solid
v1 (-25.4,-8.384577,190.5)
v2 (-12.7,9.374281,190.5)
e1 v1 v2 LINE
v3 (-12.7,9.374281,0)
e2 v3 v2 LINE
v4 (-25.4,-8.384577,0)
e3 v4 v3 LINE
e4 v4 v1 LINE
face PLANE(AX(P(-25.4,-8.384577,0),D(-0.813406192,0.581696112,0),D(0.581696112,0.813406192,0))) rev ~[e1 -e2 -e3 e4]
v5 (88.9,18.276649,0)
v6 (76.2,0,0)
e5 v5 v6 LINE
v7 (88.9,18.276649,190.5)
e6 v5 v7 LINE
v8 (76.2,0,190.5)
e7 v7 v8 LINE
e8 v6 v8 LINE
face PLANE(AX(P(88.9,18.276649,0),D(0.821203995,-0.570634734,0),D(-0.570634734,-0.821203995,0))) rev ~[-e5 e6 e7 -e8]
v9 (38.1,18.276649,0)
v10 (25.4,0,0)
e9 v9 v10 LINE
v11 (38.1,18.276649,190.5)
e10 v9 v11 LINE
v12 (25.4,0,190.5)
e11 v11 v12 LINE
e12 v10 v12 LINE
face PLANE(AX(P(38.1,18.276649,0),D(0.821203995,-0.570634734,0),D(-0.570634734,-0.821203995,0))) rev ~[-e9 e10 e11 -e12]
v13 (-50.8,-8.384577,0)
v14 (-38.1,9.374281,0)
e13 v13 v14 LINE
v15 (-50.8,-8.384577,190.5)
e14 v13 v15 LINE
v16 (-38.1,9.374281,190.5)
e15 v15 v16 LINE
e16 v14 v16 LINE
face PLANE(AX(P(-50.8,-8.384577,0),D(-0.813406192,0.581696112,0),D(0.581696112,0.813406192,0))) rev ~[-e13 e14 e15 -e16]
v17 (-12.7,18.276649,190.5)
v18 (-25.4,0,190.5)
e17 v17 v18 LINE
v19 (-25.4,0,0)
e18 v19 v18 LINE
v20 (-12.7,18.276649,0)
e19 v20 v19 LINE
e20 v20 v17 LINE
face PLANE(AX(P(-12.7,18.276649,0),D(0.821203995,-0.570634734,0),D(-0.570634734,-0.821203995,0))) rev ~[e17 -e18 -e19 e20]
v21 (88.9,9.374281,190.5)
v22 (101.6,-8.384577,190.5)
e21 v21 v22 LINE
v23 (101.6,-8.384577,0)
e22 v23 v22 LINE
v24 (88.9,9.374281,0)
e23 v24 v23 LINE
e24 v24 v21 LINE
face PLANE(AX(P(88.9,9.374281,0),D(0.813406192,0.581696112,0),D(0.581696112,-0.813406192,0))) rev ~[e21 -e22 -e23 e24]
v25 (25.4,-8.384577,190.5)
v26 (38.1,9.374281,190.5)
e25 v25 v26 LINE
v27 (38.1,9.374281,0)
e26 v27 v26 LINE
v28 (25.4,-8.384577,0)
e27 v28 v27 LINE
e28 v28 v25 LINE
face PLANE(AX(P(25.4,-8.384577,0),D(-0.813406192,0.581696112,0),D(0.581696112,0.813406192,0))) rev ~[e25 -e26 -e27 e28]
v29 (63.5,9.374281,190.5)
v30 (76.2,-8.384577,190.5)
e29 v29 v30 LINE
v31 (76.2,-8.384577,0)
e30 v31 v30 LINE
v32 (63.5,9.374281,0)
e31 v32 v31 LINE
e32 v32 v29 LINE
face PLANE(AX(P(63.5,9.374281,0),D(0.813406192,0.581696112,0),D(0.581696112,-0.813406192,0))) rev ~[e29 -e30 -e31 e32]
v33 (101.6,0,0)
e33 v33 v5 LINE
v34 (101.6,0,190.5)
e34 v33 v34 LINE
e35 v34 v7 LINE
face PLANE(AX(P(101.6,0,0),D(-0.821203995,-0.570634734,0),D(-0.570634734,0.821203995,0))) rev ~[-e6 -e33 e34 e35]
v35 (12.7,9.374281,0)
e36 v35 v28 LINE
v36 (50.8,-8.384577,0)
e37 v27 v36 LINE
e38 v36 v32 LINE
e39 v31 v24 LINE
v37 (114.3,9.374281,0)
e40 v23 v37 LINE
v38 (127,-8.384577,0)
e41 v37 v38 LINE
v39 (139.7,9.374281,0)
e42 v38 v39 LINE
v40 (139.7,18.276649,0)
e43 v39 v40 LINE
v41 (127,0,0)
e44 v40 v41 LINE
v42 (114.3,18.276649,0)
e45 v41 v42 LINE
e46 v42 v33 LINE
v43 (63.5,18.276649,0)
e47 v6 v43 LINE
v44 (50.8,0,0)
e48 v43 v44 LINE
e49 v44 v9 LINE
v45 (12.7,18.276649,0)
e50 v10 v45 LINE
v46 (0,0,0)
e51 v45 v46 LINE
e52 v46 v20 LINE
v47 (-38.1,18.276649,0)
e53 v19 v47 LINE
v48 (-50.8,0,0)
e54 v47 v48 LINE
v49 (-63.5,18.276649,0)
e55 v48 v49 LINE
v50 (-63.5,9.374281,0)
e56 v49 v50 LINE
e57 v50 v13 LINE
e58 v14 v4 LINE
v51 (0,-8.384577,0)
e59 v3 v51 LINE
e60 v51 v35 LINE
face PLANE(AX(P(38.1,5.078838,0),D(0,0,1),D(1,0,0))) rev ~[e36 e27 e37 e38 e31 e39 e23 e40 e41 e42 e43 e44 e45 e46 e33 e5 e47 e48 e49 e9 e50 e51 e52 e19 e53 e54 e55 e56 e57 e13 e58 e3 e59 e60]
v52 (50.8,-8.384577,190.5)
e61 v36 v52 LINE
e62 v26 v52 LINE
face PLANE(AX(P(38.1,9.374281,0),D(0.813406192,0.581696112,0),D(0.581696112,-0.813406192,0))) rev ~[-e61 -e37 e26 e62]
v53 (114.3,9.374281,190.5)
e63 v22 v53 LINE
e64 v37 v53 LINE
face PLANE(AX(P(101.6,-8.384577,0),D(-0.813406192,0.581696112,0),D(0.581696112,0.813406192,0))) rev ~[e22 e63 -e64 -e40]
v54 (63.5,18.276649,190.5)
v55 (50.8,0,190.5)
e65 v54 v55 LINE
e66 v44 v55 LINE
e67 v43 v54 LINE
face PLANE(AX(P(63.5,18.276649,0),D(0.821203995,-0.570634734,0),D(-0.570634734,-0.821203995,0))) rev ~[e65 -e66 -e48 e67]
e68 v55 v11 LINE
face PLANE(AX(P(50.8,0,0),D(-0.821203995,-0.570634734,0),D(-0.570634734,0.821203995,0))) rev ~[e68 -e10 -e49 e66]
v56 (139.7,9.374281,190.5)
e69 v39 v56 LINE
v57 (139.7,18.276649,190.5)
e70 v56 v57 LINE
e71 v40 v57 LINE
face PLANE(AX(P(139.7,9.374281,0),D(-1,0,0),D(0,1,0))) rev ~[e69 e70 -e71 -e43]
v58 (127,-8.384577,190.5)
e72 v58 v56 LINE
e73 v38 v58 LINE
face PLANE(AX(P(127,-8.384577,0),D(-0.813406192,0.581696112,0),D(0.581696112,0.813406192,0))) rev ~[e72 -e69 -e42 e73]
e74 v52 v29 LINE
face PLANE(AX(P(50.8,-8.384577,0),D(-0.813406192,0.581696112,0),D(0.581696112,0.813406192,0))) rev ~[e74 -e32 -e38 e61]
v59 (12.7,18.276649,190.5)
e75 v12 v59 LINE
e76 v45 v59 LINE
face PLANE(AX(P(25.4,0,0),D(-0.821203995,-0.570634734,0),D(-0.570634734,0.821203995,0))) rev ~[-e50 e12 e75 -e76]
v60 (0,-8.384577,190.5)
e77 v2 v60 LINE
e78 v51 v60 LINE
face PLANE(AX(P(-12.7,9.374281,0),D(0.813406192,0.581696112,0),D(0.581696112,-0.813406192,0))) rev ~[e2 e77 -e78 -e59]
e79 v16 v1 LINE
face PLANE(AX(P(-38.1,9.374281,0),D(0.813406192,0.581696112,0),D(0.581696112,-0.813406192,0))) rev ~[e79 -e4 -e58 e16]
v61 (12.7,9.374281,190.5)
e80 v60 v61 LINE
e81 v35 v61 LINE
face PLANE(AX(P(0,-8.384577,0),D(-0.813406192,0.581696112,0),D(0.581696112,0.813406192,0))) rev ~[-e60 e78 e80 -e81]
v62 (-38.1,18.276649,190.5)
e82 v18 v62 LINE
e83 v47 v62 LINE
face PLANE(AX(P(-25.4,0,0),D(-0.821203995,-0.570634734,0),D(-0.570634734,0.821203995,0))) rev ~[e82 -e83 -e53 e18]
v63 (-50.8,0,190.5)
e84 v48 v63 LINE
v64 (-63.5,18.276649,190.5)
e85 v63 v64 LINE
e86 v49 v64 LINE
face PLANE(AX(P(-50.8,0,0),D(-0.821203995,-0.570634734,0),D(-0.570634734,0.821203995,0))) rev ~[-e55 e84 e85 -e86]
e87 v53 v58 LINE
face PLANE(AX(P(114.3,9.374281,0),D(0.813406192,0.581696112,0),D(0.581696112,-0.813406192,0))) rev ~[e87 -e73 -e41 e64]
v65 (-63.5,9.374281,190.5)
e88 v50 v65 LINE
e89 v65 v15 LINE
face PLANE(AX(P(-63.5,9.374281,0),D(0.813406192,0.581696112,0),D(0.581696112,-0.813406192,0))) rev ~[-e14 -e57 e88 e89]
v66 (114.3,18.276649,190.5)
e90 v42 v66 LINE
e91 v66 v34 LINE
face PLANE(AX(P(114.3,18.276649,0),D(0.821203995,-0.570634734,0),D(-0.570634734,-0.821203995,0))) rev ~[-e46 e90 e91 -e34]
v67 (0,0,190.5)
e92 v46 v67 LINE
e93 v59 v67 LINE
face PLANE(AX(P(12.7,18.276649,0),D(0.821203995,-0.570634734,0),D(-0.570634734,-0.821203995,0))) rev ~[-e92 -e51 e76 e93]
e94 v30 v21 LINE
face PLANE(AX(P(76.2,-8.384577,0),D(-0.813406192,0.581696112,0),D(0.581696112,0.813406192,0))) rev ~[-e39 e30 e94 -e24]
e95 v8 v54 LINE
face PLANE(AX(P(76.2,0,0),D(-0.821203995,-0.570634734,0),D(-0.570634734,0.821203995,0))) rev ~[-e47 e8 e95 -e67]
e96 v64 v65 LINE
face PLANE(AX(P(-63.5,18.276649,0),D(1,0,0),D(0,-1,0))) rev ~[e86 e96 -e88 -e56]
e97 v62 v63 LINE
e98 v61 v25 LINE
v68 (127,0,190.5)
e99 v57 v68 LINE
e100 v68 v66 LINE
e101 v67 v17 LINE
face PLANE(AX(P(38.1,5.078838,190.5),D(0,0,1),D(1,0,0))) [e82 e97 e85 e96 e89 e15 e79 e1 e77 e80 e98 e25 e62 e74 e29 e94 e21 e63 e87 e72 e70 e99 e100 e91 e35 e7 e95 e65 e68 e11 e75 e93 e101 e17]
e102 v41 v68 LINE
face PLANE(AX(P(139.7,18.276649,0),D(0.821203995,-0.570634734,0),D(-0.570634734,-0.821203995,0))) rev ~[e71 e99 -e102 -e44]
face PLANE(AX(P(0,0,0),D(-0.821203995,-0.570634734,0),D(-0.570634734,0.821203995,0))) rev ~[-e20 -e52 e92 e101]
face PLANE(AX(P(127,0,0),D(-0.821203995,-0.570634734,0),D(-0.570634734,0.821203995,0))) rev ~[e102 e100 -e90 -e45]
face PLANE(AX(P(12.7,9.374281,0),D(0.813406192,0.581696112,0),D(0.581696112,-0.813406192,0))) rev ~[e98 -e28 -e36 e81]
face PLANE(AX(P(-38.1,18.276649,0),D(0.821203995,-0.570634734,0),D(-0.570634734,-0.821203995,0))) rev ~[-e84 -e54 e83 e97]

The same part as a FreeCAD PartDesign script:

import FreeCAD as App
import Part
import Sketcher

V = App.Vector
Q = App.Units.Quantity

doc = App.newDocument("Part")
body = doc.addObject("PartDesign::Body", "Body")

# Sketch on XY plane
sketch1 = body.newObject("Sketcher::SketchObject", "Sketch")
sketch1.AttachmentSupport = (doc.getObject("XY_Plane"), [""])
sketch1.MapMode = "FlatFace"
sketch1.addGeometry([
    Part.LineSegment(V(-51, 0, 0), V(-64, 18, 0)),  # 0
    Part.LineSegment(V(-64, 18, 0), V(-64, 9, 0)),  # 1
    Part.LineSegment(V(-64, 9, 0), V(-51, -8, 0)),  # 2
    Part.LineSegment(V(-51, -8, 0), V(-38, 9, 0)),  # 3
    Part.LineSegment(V(-38, 9, 0), V(-25, -8, 0)),  # 4
    Part.LineSegment(V(-25, -8, 0), V(-13, 9, 0)),  # 5
    Part.LineSegment(V(-13, 9, 0), V(0, -8, 0)),  # 6
    Part.LineSegment(V(0, -8, 0), V(13, 9, 0)),  # 7
    Part.LineSegment(V(13, 9, 0), V(25, -8, 0)),  # 8
    Part.LineSegment(V(25, -8, 0), V(38, 9, 0)),  # 9
    Part.LineSegment(V(38, 9, 0), V(51, -8, 0)),  # 10
    Part.LineSegment(V(51, -8, 0), V(64, 9, 0)),  # 11
    Part.LineSegment(V(64, 9, 0), V(76, -8, 0)),  # 12
    Part.LineSegment(V(76, -8, 0), V(89, 9, 0)),  # 13
    Part.LineSegment(V(89, 9, 0), V(102, -8, 0)),  # 14
    Part.LineSegment(V(102, -8, 0), V(114, 9, 0)),  # 15
    Part.LineSegment(V(114, 9, 0), V(127, -8, 0)),  # 16
    Part.LineSegment(V(127, -8, 0), V(140, 9, 0)),  # 17
    Part.LineSegment(V(140, 9, 0), V(140, 18, 0)),  # 18
    Part.LineSegment(V(140, 18, 0), V(127, 0, 0)),  # 19
    Part.LineSegment(V(127, 0, 0), V(114, 18, 0)),  # 20
    Part.LineSegment(V(114, 18, 0), V(102, 0, 0)),  # 21
    Part.LineSegment(V(102, 0, 0), V(89, 18, 0)),  # 22
    Part.LineSegment(V(89, 18, 0), V(76, 0, 0)),  # 23
    Part.LineSegment(V(76, 0, 0), V(64, 18, 0)),  # 24
    Part.LineSegment(V(64, 18, 0), V(51, 0, 0)),  # 25
    Part.LineSegment(V(51, 0, 0), V(38, 18, 0)),  # 26
    Part.LineSegment(V(38, 18, 0), V(25, 0, 0)),  # 27
    Part.LineSegment(V(25, 0, 0), V(13, 18, 0)),  # 28
    Part.LineSegment(V(13, 18, 0), V(0, 0, 0)),  # 29
    Part.LineSegment(V(0, 0, 0), V(-13, 18, 0)),  # 30
    Part.LineSegment(V(-13, 18, 0), V(-25, 0, 0)),  # 31
    Part.LineSegment(V(-25, 0, 0), V(-38, 18, 0)),  # 32
    Part.LineSegment(V(-38, 18, 0), V(-51, 0, 0)),  # 33
], False)
sketch1.addConstraint([
    Sketcher.Constraint("Coincident", 0, 2, 1, 1),
    Sketcher.Constraint("Coincident", 1, 2, 2, 1),
    Sketcher.Constraint("Coincident", 2, 2, 3, 1),
    Sketcher.Constraint("Coincident", 3, 2, 4, 1),
    Sketcher.Constraint("Coincident", 4, 2, 5, 1),
    Sketcher.Constraint("Coincident", 5, 2, 6, 1),
    Sketcher.Constraint("Coincident", 6, 2, 7, 1),
    Sketcher.Constraint("Coincident", 7, 2, 8, 1),
    Sketcher.Constraint("Coincident", 8, 2, 9, 1),
    Sketcher.Constraint("Coincident", 9, 2, 10, 1),
    Sketcher.Constraint("Coincident", 10, 2, 11, 1),
    Sketcher.Constraint("Coincident", 11, 2, 12, 1),
    Sketcher.Constraint("Coincident", 12, 2, 13, 1),
    Sketcher.Constraint("Coincident", 13, 2, 14, 1),
    Sketcher.Constraint("Coincident", 14, 2, 15, 1),
    Sketcher.Constraint("Coincident", 15, 2, 16, 1),
    Sketcher.Constraint("Coincident", 16, 2, 17, 1),
    Sketcher.Constraint("Coincident", 17, 2, 18, 1),
    Sketcher.Constraint("Coincident", 18, 2, 19, 1),
    Sketcher.Constraint("Coincident", 19, 2, 20, 1),
    Sketcher.Constraint("Coincident", 20, 2, 21, 1),
    Sketcher.Constraint("Coincident", 21, 2, 22, 1),
    Sketcher.Constraint("Coincident", 22, 2, 23, 1),
    Sketcher.Constraint("Coincident", 23, 2, 24, 1),
    Sketcher.Constraint("Coincident", 24, 2, 25, 1),
    Sketcher.Constraint("Coincident", 25, 2, 26, 1),
    Sketcher.Constraint("Coincident", 26, 2, 27, 1),
    Sketcher.Constraint("Coincident", 27, 2, 28, 1),
    Sketcher.Constraint("Coincident", 28, 2, 29, 1),
    Sketcher.Constraint("Coincident", 29, 2, 30, 1),
    Sketcher.Constraint("Coincident", 30, 2, 31, 1),
    Sketcher.Constraint("Coincident", 31, 2, 32, 1),
    Sketcher.Constraint("Coincident", 32, 2, 33, 1),
    Sketcher.Constraint("Coincident", 33, 2, 0, 1),
    Sketcher.Constraint("Vertical", 1),
    Sketcher.Constraint("Vertical", 18),
    Sketcher.Constraint("Coincident", 29, 2, -1, 1),
    Sketcher.Constraint("Symmetric", 27, 2, 31, 2, -1, 1),
    Sketcher.Constraint("Symmetric", 25, 2, 33, 2, -1, 1),
    Sketcher.Constraint("Symmetric", 5, 2, 7, 2, -2),
    Sketcher.Constraint("Symmetric", 4, 2, 8, 2, -2),
    Sketcher.Constraint("Symmetric", 3, 2, 9, 2, -2),
    Sketcher.Constraint("Symmetric", 2, 2, 10, 2, -2),
    Sketcher.Constraint("Symmetric", 1, 2, 11, 2, -2),
    Sketcher.Constraint("Symmetric", 0, 2, 24, 2, -2),
    Sketcher.Constraint("Symmetric", 28, 2, 30, 2, -2),
    Sketcher.Constraint("Symmetric", 26, 2, 32, 2, -2),
    Sketcher.Constraint("PointOnObject", 6, 2, -2),
    Sketcher.Constraint("PointOnObject", 19, 2, -1),
    Sketcher.Constraint("PointOnObject", 21, 2, -1),
    Sketcher.Constraint("PointOnObject", 23, 2, -1),
    Sketcher.Constraint("PointOnObject", 25, 2, -1),
    Sketcher.Constraint("PointOnObject", 27, 2, -1),
    Sketcher.Constraint("Parallel", 2, 4),
    Sketcher.Constraint("Parallel", 3, 5),
    Sketcher.Constraint("Parallel", 4, 6),
    Sketcher.Constraint("Parallel", 5, 7),
    Sketcher.Constraint("Parallel", 10, 12),
    Sketcher.Constraint("Parallel", 11, 13),
    Sketcher.Constraint("Parallel", 12, 14),
    Sketcher.Constraint("Parallel", 13, 15),
    Sketcher.Constraint("Parallel", 14, 16),
    Sketcher.Constraint("Parallel", 15, 17),
    Sketcher.Constraint("Parallel", 0, 20),
    Sketcher.Constraint("Parallel", 19, 21),
    Sketcher.Constraint("Parallel", 20, 22),
    Sketcher.Constraint("Parallel", 21, 23),
    Sketcher.Constraint("Parallel", 22, 24),
    Sketcher.Constraint("Parallel", 23, 25),
    Sketcher.Constraint("Parallel", 24, 26),
    Sketcher.Constraint("Parallel", 25, 27),
    Sketcher.Constraint("Parallel", 26, 28),
    Sketcher.Constraint("Parallel", 27, 29),
    Sketcher.Constraint("Horizontal", 1, 2, 3, 2),
    Sketcher.Constraint("Horizontal", 2, 2, 4, 2),
    Sketcher.Constraint("Horizontal", 3, 2, 5, 2),
    Sketcher.Constraint("Horizontal", 4, 2, 6, 2),
    Sketcher.Constraint("Horizontal", 10, 2, 12, 2),
    Sketcher.Constraint("Horizontal", 11, 2, 13, 2),
    Sketcher.Constraint("Horizontal", 12, 2, 14, 2),
    Sketcher.Constraint("Horizontal", 13, 2, 15, 2),
    Sketcher.Constraint("Horizontal", 14, 2, 16, 2),
    Sketcher.Constraint("Horizontal", 15, 2, 17, 2),
    Sketcher.Constraint("Horizontal", 0, 2, 18, 2),
    Sketcher.Constraint("Horizontal", 18, 2, 20, 2),
    Sketcher.Constraint("Horizontal", 20, 2, 22, 2),
    Sketcher.Constraint("Horizontal", 24, 2, 26, 2),
    Sketcher.Constraint("DistanceX", 2, 2, -1, 1, Q("2 in")),
    Sketcher.Constraint("Distance", 0, 22.255918),
    Sketcher.Constraint("DistanceY", 1, 2, 1, 1, 8.902368),
    Sketcher.Constraint("DistanceY", 2, 2, 1, 2, 17.758858),
])
pad1 = body.newObject("PartDesign::Pad", "Pad")
pad1.Profile = sketch1
pad1.Length = Q("7.5 in")

doc.recompute()
